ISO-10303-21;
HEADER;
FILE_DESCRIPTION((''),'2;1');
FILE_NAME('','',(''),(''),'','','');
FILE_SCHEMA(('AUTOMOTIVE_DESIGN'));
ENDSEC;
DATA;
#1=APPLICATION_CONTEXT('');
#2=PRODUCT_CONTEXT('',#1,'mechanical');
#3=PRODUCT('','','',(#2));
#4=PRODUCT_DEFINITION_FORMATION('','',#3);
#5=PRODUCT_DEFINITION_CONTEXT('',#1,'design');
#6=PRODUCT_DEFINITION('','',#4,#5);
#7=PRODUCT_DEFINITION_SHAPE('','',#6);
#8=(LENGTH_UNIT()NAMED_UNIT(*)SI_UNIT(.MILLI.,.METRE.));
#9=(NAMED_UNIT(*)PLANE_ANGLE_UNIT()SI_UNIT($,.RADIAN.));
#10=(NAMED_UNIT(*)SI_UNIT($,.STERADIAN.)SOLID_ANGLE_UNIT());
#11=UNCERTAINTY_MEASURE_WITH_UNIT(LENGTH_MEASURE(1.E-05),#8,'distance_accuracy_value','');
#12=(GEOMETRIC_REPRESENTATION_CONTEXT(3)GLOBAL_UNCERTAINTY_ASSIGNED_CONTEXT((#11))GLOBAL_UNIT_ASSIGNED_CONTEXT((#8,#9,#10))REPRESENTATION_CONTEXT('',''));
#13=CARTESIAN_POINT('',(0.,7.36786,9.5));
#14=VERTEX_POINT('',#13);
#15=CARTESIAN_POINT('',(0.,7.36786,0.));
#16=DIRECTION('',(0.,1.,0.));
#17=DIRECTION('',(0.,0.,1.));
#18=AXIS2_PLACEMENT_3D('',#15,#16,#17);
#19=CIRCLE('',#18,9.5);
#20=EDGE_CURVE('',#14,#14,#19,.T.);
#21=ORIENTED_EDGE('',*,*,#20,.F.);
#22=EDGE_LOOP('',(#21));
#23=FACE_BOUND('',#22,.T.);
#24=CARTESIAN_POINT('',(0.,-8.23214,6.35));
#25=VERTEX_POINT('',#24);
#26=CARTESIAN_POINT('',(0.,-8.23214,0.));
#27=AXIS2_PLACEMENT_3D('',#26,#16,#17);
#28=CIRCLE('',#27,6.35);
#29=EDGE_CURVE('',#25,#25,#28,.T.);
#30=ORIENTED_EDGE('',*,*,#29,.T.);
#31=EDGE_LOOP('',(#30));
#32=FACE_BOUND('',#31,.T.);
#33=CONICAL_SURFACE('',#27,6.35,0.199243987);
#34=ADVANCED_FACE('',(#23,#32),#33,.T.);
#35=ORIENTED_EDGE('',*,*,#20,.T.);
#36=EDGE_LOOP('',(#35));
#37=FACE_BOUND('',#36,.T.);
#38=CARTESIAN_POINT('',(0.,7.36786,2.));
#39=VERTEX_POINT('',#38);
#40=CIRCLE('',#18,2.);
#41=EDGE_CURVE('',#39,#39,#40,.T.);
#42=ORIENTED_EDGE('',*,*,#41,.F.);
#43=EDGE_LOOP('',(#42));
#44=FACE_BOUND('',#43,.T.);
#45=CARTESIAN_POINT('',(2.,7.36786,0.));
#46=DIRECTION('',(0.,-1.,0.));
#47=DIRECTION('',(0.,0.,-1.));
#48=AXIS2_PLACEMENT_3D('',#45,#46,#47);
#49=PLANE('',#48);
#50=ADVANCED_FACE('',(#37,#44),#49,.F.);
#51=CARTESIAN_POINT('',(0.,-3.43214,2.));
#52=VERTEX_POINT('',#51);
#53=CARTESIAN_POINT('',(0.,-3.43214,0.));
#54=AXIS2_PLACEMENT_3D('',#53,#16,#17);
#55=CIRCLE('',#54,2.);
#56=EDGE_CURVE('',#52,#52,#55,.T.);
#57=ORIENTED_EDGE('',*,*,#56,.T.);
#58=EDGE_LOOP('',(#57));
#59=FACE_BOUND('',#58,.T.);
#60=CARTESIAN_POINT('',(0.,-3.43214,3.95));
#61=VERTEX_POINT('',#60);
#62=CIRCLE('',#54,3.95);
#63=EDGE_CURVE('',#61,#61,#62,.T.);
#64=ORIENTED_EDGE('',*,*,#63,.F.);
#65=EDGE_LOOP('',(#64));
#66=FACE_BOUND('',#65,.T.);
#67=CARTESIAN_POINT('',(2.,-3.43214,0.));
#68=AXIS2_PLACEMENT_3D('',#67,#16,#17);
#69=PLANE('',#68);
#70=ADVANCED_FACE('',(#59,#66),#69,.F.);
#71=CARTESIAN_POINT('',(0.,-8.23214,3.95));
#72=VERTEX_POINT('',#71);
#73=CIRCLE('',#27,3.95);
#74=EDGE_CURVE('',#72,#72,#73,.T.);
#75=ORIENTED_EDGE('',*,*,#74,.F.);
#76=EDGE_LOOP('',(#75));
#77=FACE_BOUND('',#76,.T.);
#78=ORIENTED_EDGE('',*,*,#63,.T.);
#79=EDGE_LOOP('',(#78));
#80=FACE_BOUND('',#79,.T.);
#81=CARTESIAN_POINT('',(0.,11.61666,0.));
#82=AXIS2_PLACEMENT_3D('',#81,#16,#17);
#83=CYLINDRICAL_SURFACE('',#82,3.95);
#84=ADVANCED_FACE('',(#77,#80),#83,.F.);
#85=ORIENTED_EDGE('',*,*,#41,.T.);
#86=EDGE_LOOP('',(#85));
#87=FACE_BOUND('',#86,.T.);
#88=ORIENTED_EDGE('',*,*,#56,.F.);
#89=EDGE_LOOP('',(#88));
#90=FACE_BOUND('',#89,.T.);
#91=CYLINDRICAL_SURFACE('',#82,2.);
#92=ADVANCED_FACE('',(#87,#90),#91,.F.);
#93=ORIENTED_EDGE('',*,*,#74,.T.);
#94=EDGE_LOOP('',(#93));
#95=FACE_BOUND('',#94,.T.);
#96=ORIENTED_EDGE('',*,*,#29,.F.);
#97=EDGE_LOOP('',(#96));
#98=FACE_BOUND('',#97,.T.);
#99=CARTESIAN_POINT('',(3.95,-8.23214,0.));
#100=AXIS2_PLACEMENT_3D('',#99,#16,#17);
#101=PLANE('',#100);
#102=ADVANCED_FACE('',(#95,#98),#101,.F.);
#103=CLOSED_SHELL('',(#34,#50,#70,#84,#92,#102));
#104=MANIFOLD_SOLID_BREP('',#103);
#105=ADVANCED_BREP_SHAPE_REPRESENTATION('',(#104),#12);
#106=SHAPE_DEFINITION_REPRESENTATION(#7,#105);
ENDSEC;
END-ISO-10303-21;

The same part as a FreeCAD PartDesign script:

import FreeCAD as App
import Part
import Sketcher

V = App.Vector
Q = App.Units.Quantity

doc = App.newDocument("Part")
body = doc.addObject("PartDesign::Body", "Body")

sketch1 = body.newObject("Sketcher::SketchObject", "Sketch")
sketch1.AttachmentSupport = (doc.getObject("XY_Plane"), [""])
sketch1.MapMode = "FlatFace"
sketch1.addGeometry(Part.LineSegment(V(9.5, 7.4, 0), V(2, 7.4, 0)), False)
sketch1.addGeometry(Part.LineSegment(V(2, 7.4, 0), V(2, -3.4, 0)), False)
sketch1.addGeometry(Part.LineSegment(V(2, -3.4, 0), V(4, -3.4, 0)), False)
sketch1.addGeometry(Part.LineSegment(V(4, -3.4, 0), V(4, -8.2, 0)), False)
sketch1.addGeometry(Part.LineSegment(V(4, -8.2, 0), V(6.3, -8.2, 0)), False)
sketch1.addGeometry(Part.LineSegment(V(6.3, -8.2, 0), V(9.5, 7.4, 0)), False)
sketch1.addConstraint(Sketcher.Constraint("Coincident", 0, 2, 1, 1))
sketch1.addConstraint(Sketcher.Constraint("Coincident", 1, 2, 2, 1))
sketch1.addConstraint(Sketcher.Constraint("Coincident", 2, 2, 3, 1))
sketch1.addConstraint(Sketcher.Constraint("Coincident", 3, 2, 4, 1))
sketch1.addConstraint(Sketcher.Constraint("Coincident", 4, 2, 5, 1))
sketch1.addConstraint(Sketcher.Constraint("Coincident", 5, 2, 0, 1))
sketch1.addConstraint(Sketcher.Constraint("Horizontal", 0))
sketch1.addConstraint(Sketcher.Constraint("Vertical", 1))
sketch1.addConstraint(Sketcher.Constraint("Horizontal", 2))
sketch1.addConstraint(Sketcher.Constraint("Vertical", 3))
sketch1.addConstraint(Sketcher.Constraint("Horizontal", 4))
sketch1.addConstraint(Sketcher.Constraint("DistanceX", 0, 2, 0, 1, Q("7.5 mm")))
sketch1.addConstraint(Sketcher.Constraint("DistanceX", 4, 1, 4, 2, Q("2.4 mm")))
sketch1.addConstraint(Sketcher.Constraint("DistanceY", 1, 2, 1, 1, Q("10.8 mm")))
sketch1.addConstraint(Sketcher.Constraint("DistanceY", 3, 2, 3, 1, Q("4.8 mm")))
sketch1.addConstraint(Sketcher.Constraint("DistanceX", -1, 1, 0, 2, Q("2 mm")))
sketch1.addConstraint(Sketcher.Constraint("DistanceX", 2, 1, 2, 2, Q("1.95 mm")))
sketch1.addConstraint(Sketcher.Constraint("DistanceY", -1, 1, 0, 2, Q("7.36786 mm")))
revolution = body.newObject("PartDesign::Revolution", "Revolution")
revolution.Profile = sketch1
revolution.ReferenceAxis = (sketch1, ["V_Axis"])
revolution.Angle = 360

doc.recompute()
